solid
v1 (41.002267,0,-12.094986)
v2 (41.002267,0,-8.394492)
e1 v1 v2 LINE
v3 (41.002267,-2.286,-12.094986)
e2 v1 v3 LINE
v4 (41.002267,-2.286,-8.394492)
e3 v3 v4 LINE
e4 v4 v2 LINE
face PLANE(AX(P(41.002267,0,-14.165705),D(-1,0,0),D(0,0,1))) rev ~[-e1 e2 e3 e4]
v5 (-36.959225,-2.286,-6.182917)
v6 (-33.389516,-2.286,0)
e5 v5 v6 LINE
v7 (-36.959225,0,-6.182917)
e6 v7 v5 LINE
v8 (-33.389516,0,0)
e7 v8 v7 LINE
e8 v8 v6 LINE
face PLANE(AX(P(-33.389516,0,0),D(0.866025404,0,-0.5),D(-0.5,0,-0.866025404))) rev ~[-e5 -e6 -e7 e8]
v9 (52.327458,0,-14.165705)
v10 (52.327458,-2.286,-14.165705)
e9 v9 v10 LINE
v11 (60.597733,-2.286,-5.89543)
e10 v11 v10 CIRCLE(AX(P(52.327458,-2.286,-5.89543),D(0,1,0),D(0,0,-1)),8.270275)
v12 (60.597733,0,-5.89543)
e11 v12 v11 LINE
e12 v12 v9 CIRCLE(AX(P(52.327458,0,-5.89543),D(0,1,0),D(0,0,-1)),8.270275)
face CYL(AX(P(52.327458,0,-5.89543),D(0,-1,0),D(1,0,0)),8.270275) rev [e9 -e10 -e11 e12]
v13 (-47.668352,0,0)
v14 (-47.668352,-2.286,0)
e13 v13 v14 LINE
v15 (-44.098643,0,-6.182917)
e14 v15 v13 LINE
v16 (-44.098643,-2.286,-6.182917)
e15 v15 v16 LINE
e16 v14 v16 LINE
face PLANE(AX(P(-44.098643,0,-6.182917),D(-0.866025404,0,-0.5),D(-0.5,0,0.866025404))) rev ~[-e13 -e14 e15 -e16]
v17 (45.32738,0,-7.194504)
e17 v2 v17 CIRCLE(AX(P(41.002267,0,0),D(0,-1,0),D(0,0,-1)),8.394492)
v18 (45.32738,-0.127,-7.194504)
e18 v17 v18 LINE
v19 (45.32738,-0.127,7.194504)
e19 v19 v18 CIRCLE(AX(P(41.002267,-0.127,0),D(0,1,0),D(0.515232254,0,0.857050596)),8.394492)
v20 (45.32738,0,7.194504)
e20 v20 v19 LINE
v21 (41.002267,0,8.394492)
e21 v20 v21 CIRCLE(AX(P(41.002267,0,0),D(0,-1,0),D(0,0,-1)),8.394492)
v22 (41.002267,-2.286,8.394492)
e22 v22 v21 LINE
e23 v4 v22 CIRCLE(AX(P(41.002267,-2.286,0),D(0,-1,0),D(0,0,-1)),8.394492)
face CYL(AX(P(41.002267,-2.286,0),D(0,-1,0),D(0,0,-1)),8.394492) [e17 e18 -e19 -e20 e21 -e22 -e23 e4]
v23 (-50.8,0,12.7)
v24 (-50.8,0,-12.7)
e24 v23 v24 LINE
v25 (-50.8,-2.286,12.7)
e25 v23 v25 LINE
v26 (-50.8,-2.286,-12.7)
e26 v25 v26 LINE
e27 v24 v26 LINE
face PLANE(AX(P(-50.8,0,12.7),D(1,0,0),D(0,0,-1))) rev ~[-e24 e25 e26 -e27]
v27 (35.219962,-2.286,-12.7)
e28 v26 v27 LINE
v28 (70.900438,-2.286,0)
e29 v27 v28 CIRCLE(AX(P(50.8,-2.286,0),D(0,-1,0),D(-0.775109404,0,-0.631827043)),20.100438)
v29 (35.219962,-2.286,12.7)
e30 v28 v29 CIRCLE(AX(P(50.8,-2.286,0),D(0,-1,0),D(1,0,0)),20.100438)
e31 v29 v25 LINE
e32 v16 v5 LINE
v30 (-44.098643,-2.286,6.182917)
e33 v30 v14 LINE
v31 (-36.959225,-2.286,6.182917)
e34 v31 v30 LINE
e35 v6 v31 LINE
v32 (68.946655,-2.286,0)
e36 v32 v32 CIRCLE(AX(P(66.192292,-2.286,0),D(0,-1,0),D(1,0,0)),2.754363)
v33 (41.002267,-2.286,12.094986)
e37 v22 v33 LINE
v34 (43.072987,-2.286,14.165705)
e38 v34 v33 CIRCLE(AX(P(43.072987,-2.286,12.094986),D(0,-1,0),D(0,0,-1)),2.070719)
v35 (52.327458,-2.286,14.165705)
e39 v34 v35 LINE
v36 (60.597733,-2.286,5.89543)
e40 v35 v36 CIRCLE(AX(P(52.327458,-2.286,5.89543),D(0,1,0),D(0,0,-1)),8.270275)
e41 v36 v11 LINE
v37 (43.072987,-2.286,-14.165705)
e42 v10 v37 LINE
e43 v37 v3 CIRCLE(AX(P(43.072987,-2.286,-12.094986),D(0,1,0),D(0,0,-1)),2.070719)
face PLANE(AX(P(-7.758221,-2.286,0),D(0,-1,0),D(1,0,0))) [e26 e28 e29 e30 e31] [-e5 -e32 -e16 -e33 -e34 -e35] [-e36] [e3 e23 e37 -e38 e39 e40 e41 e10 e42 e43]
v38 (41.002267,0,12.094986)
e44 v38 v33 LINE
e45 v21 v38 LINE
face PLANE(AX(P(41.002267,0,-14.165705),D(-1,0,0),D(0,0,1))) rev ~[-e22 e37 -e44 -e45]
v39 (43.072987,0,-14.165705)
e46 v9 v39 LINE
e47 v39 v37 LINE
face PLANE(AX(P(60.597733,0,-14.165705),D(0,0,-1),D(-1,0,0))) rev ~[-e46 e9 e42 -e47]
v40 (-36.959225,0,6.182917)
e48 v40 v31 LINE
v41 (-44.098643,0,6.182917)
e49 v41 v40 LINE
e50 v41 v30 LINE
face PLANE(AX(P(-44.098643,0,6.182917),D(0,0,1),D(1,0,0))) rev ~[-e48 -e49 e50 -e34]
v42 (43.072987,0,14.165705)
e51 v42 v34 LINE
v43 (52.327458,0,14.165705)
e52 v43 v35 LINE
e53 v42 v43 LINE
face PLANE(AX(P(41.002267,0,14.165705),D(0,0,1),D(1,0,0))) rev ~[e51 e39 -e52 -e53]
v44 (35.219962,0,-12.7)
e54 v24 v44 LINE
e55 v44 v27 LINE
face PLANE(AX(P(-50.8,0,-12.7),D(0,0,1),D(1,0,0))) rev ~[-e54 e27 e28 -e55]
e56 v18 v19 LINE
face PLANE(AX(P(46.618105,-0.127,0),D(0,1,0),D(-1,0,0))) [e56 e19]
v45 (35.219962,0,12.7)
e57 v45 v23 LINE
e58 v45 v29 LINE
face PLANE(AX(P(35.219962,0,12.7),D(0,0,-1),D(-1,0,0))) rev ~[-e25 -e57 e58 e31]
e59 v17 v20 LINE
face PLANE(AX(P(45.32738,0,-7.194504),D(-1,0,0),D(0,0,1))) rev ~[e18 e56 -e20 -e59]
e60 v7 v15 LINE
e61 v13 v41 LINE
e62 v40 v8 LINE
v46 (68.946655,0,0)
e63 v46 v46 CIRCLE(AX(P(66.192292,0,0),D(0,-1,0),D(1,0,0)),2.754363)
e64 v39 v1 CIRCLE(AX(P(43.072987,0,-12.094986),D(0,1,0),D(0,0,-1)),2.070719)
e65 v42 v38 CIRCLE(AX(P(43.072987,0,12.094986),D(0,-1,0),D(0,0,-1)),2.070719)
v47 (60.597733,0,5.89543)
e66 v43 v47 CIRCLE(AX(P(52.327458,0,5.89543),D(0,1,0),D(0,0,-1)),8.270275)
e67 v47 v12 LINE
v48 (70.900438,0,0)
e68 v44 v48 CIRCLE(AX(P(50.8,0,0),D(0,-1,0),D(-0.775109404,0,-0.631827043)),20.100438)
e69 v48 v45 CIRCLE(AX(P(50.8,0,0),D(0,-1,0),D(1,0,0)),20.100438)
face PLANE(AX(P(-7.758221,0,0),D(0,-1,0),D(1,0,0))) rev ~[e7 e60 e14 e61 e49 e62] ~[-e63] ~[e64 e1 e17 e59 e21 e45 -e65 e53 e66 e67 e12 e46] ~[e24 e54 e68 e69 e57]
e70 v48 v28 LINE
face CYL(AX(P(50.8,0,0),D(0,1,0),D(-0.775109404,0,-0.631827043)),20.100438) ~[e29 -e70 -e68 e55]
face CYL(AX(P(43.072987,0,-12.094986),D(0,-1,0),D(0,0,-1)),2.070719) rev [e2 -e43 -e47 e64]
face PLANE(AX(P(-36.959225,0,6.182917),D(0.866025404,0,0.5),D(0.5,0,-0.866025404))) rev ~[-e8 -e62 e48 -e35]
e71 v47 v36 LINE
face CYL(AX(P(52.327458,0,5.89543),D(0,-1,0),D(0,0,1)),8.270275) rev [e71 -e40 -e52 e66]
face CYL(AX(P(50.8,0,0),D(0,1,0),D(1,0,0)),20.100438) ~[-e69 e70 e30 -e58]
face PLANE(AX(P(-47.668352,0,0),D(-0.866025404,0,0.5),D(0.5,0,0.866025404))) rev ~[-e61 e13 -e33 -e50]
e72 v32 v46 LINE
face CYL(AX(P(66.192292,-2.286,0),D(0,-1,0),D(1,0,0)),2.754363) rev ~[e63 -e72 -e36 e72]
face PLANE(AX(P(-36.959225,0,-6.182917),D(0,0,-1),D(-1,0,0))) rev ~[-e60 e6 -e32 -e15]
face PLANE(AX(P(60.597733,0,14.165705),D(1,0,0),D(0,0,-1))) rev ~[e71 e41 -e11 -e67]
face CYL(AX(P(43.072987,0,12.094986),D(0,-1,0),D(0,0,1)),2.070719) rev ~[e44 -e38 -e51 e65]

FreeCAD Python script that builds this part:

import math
import FreeCAD as App
import Part
import Sketcher
from FreeCAD import Vector
Q = App.Units.Quantity


def edges_at(feature, points):
    """Names of the edges that pass closest to the given points."""
    edges = feature.Shape.Edges
    near = lambda p: min(range(len(edges)), key=lambda i: edges[i].distToShape(Part.Vertex(*p))[0])
    return sorted({f"Edge{near(p) + 1}" for p in points})

doc = App.newDocument("Part")
body = doc.addObject("PartDesign::Body", "Body")

sketch1 = doc.addObject("Sketcher::SketchObject", "Sketch")
body.addObject(sketch1)
sketch1.AttachmentSupport = (doc.XZ_Plane, [""])
sketch1.MapMode = "FlatFace"
sketch1.addGeometry([
    Part.LineSegment(Vector(-51, -13, 0), Vector(35, -13, 0)),
    Part.ArcOfCircle(Part.Circle(Vector(51, 0, 0), Vector(0, 0, 1), 20), math.radians(-141), math.radians(0)),
    Part.ArcOfCircle(Part.Circle(Vector(51, 0, 0), Vector(0, 0, 1), 20), math.radians(0), math.radians(141)),
    Part.LineSegment(Vector(35, 13, 0), Vector(-51, 13, 0)),
    Part.LineSegment(Vector(-51, 13, 0), Vector(-51, -13, 0)),
    Part.LineSegment(Vector(41, 14, 0), Vector(61, 14, 0)),
    Part.LineSegment(Vector(61, 14, 0), Vector(61, -14, 0)),
    Part.LineSegment(Vector(61, -14, 0), Vector(41, -14, 0)),
    Part.LineSegment(Vector(41, -14, 0), Vector(41, 14, 0)),
], False)
sketch1.addConstraint([
    Sketcher.Constraint("Coincident", 0, 2, 1, 1),
    Sketcher.Constraint("Tangent", 1, 2, 2, 1),
    Sketcher.Constraint("Coincident", 2, 2, 3, 1),
    Sketcher.Constraint("Coincident", 3, 2, 4, 1),
    Sketcher.Constraint("Coincident", 4, 2, 0, 1),
    Sketcher.Constraint("Coincident", 5, 2, 6, 1),
    Sketcher.Constraint("Coincident", 6, 2, 7, 1),
    Sketcher.Constraint("Coincident", 7, 2, 8, 1),
    Sketcher.Constraint("Coincident", 8, 2, 5, 1),
    Sketcher.Constraint("Horizontal", 0),
    Sketcher.Constraint("Horizontal", 3),
    Sketcher.Constraint("Vertical", 4),
    Sketcher.Constraint("Horizontal", 5),
    Sketcher.Constraint("Vertical", 6),
    Sketcher.Constraint("Horizontal", 7),
    Sketcher.Constraint("Vertical", 8),
    Sketcher.Constraint("Equal", 1, 2),
    Sketcher.Constraint("Symmetric", 0, 2, 2, 2, -1),
    Sketcher.Constraint("PointOnObject", 1, 2, -1),
    Sketcher.Constraint("DistanceY", 4, 2, 4, 1, Q("1 in")),
    Sketcher.Constraint("DistanceX", -1, 1, 1, 3, Q("2 in")),
    Sketcher.Constraint("DistanceX", 3, 2, -1, 1, Q("2 in")),
    Sketcher.Constraint("Radius", 1, 20.100438),
    Sketcher.Constraint("DistanceY", 6, 2, 6, 1, 28.33141),
    Sketcher.Constraint("DistanceX", 5, 1, 5, 2, 19.595465),
    Sketcher.Constraint("DistanceX", 2, 2, 5, 2, 25.377771),
    Sketcher.Constraint("DistanceY", -1, 1, 5, 2, 14.165705),
])
pad1 = doc.addObject("PartDesign::Pad", "Pad")
body.addObject(pad1)
pad1.Profile = sketch1
pad1.Length = Q("0.09 in")

sketch2 = doc.addObject("Sketcher::SketchObject", "Sketch001")
body.addObject(sketch2)
sketch2.AttachmentSupport = (doc.XZ_Plane, [""])
sketch2.MapMode = "FlatFace"
sketch2.AttachmentOffset = App.Placement(Vector(0, 0, 0.09 * 25.4), App.Rotation())
sketch2.addGeometry([
    Part.LineSegment(Vector(41, 8, 0), Vector(41, -8, 0)),
    Part.ArcOfCircle(Part.Circle(Vector(41, 0, 0), Vector(0, 0, 1), 8), math.radians(-90), math.radians(90)),
], False)
sketch2.addConstraint([
    Sketcher.Constraint("Coincident", 0, 1, 1, 2),
    Sketcher.Constraint("Coincident", 1, 1, 0, 2),
    Sketcher.Constraint("Vertical", 0),
    Sketcher.Constraint("PointOnObject", 1, 3, -1),
    Sketcher.Constraint("Vertical", 1, 3, 0, 1),
    Sketcher.Constraint("Radius", 1, 8.394492),
    Sketcher.Constraint("DistanceX", -1, 1, 1, 3, 41.002267),
])
pad2 = doc.addObject("PartDesign::Pad", "Pad001")
body.addObject(pad2)
pad2.Profile = sketch2
pad2.Length = Q("0.09 in")
pad2.Reversed = True
doc.recompute()

fillet = doc.addObject("PartDesign::Fillet", "Fillet")
body.addObject(fillet)
fillet.Base = (pad2, edges_at(pad2, [(41.002, -1.143, 14.166), (41.002, -1.143, -14.166)]))
fillet.Radius = 2.070719
doc.recompute()

fillet2 = doc.addObject("PartDesign::Fillet", "Fillet001")
body.addObject(fillet2)
fillet2.Base = (fillet, edges_at(fillet, [(60.598, -1.143, -14.166), (60.598, -1.143, 14.166)]))
fillet2.Radius = 8.270275

sketch3 = doc.addObject("Sketcher::SketchObject", "Sketch002")
body.addObject(sketch3)
sketch3.AttachmentSupport = (doc.XZ_Plane, [""])
sketch3.MapMode = "FlatFace"
sketch3.AttachmentOffset = App.Placement(Vector(0, 0, 0.09 * 25.4), App.Rotation())
sketch3.addGeometry(Part.Circle(Vector(66.2, 0, 0), Vector(0, 0, 1), 2.8), False)
sketch3.addConstraint([
    Sketcher.Constraint("PointOnObject", 0, 3, -1),
    Sketcher.Constraint("Diameter", 0, 5.508727),
    Sketcher.Constraint("DistanceX", -1, 1, 0, 3, 66.192292),
])
pocket1 = doc.addObject("PartDesign::Pocket", "Pocket")
body.addObject(pocket1)
pocket1.Profile = sketch3
pocket1.Length = Q("1 in")

sketch4 = doc.addObject("Sketcher::SketchObject", "Sketch003")
body.addObject(sketch4)
sketch4.AttachmentSupport = (doc.XZ_Plane, [""])
sketch4.MapMode = "FlatFace"
sketch4.addGeometry([
    Part.ArcOfCircle(Part.Circle(Vector(41, 0, 0), Vector(0, 0, 1), 8), math.radians(-59), math.radians(59)),
    Part.LineSegment(Vector(45, -7, 0), Vector(45, 7, 0)),
], False)
sketch4.addConstraint([
    Sketcher.Constraint("Coincident", 0, 1, 1, 1),
    Sketcher.Constraint("Coincident", 1, 2, 0, 2),
    Sketcher.Constraint("Vertical", 1),
    Sketcher.Constraint("PointOnObject", 0, 3, -1),
    Sketcher.Constraint("Radius", 0, 8.394492),
    Sketcher.Constraint("DistanceY", 1, 1, 1, 2, 14.389009),
    Sketcher.Constraint("DistanceX", -1, 1, 0, 1, 45.32738),
])
pocket2 = doc.addObject("PartDesign::Pocket", "Pocket001")
body.addObject(pocket2)
pocket2.Profile = sketch4
pocket2.Length = Q("0.005 in")
pocket2.Reversed = True

sketch5 = doc.addObject("Sketcher::SketchObject", "Sketch004")
body.addObject(sketch5)
sketch5.AttachmentSupport = (doc.XZ_Plane, [""])
sketch5.MapMode = "FlatFace"
sketch5.addGeometry([
    Part.LineSegment(Vector(-44, 6, 0), Vector(-37, 6, 0)),
    Part.LineSegment(Vector(-37, 6, 0), Vector(-33, 0, 0)),
    Part.LineSegment(Vector(-33, 0, 0), Vector(-37, -6, 0)),
    Part.LineSegment(Vector(-37, -6, 0), Vector(-44, -6, 0)),
    Part.LineSegment(Vector(-44, -6, 0), Vector(-48, 0, 0)),
    Part.LineSegment(Vector(-48, 0, 0), Vector(-44, 6, 0)),
], False)
sketch5.addConstraint([
    Sketcher.Constraint("Coincident", 0, 2, 1, 1),
    Sketcher.Constraint("Coincident", 1, 2, 2, 1),
    Sketcher.Constraint("Coincident", 2, 2, 3, 1),
    Sketcher.Constraint("Coincident", 3, 2, 4, 1),
    Sketcher.Constraint("Coincident", 4, 2, 5, 1),
    Sketcher.Constraint("Coincident", 5, 2, 0, 1),
    Sketcher.Constraint("Horizontal", 0),
    Sketcher.Constraint("Horizontal", 3),
    Sketcher.Constraint("Symmetric", 0, 2, 2, 2, -1),
    Sketcher.Constraint("PointOnObject", 1, 2, -1),
    Sketcher.Constraint("PointOnObject", 4, 2, -1),
    Sketcher.Constraint("Parallel", 1, 4),
    Sketcher.Constraint("Parallel", 2, 5),
    Sketcher.Constraint("Angle", 1, Q("-60 deg")),
    Sketcher.Constraint("DistanceX", 0, 1, 0, 2, 7.139418),
    Sketcher.Constraint("Distance", 1, 7.139418),
    Sketcher.Constraint("DistanceX", 0, 2, -1, 1, 36.959225),
])
pocket3 = doc.addObject("PartDesign::Pocket", "Pocket002")
body.addObject(pocket3)
pocket3.Profile = sketch5
pocket3.Length = Q("1 in")
pocket3.Reversed = True

doc.recompute()
